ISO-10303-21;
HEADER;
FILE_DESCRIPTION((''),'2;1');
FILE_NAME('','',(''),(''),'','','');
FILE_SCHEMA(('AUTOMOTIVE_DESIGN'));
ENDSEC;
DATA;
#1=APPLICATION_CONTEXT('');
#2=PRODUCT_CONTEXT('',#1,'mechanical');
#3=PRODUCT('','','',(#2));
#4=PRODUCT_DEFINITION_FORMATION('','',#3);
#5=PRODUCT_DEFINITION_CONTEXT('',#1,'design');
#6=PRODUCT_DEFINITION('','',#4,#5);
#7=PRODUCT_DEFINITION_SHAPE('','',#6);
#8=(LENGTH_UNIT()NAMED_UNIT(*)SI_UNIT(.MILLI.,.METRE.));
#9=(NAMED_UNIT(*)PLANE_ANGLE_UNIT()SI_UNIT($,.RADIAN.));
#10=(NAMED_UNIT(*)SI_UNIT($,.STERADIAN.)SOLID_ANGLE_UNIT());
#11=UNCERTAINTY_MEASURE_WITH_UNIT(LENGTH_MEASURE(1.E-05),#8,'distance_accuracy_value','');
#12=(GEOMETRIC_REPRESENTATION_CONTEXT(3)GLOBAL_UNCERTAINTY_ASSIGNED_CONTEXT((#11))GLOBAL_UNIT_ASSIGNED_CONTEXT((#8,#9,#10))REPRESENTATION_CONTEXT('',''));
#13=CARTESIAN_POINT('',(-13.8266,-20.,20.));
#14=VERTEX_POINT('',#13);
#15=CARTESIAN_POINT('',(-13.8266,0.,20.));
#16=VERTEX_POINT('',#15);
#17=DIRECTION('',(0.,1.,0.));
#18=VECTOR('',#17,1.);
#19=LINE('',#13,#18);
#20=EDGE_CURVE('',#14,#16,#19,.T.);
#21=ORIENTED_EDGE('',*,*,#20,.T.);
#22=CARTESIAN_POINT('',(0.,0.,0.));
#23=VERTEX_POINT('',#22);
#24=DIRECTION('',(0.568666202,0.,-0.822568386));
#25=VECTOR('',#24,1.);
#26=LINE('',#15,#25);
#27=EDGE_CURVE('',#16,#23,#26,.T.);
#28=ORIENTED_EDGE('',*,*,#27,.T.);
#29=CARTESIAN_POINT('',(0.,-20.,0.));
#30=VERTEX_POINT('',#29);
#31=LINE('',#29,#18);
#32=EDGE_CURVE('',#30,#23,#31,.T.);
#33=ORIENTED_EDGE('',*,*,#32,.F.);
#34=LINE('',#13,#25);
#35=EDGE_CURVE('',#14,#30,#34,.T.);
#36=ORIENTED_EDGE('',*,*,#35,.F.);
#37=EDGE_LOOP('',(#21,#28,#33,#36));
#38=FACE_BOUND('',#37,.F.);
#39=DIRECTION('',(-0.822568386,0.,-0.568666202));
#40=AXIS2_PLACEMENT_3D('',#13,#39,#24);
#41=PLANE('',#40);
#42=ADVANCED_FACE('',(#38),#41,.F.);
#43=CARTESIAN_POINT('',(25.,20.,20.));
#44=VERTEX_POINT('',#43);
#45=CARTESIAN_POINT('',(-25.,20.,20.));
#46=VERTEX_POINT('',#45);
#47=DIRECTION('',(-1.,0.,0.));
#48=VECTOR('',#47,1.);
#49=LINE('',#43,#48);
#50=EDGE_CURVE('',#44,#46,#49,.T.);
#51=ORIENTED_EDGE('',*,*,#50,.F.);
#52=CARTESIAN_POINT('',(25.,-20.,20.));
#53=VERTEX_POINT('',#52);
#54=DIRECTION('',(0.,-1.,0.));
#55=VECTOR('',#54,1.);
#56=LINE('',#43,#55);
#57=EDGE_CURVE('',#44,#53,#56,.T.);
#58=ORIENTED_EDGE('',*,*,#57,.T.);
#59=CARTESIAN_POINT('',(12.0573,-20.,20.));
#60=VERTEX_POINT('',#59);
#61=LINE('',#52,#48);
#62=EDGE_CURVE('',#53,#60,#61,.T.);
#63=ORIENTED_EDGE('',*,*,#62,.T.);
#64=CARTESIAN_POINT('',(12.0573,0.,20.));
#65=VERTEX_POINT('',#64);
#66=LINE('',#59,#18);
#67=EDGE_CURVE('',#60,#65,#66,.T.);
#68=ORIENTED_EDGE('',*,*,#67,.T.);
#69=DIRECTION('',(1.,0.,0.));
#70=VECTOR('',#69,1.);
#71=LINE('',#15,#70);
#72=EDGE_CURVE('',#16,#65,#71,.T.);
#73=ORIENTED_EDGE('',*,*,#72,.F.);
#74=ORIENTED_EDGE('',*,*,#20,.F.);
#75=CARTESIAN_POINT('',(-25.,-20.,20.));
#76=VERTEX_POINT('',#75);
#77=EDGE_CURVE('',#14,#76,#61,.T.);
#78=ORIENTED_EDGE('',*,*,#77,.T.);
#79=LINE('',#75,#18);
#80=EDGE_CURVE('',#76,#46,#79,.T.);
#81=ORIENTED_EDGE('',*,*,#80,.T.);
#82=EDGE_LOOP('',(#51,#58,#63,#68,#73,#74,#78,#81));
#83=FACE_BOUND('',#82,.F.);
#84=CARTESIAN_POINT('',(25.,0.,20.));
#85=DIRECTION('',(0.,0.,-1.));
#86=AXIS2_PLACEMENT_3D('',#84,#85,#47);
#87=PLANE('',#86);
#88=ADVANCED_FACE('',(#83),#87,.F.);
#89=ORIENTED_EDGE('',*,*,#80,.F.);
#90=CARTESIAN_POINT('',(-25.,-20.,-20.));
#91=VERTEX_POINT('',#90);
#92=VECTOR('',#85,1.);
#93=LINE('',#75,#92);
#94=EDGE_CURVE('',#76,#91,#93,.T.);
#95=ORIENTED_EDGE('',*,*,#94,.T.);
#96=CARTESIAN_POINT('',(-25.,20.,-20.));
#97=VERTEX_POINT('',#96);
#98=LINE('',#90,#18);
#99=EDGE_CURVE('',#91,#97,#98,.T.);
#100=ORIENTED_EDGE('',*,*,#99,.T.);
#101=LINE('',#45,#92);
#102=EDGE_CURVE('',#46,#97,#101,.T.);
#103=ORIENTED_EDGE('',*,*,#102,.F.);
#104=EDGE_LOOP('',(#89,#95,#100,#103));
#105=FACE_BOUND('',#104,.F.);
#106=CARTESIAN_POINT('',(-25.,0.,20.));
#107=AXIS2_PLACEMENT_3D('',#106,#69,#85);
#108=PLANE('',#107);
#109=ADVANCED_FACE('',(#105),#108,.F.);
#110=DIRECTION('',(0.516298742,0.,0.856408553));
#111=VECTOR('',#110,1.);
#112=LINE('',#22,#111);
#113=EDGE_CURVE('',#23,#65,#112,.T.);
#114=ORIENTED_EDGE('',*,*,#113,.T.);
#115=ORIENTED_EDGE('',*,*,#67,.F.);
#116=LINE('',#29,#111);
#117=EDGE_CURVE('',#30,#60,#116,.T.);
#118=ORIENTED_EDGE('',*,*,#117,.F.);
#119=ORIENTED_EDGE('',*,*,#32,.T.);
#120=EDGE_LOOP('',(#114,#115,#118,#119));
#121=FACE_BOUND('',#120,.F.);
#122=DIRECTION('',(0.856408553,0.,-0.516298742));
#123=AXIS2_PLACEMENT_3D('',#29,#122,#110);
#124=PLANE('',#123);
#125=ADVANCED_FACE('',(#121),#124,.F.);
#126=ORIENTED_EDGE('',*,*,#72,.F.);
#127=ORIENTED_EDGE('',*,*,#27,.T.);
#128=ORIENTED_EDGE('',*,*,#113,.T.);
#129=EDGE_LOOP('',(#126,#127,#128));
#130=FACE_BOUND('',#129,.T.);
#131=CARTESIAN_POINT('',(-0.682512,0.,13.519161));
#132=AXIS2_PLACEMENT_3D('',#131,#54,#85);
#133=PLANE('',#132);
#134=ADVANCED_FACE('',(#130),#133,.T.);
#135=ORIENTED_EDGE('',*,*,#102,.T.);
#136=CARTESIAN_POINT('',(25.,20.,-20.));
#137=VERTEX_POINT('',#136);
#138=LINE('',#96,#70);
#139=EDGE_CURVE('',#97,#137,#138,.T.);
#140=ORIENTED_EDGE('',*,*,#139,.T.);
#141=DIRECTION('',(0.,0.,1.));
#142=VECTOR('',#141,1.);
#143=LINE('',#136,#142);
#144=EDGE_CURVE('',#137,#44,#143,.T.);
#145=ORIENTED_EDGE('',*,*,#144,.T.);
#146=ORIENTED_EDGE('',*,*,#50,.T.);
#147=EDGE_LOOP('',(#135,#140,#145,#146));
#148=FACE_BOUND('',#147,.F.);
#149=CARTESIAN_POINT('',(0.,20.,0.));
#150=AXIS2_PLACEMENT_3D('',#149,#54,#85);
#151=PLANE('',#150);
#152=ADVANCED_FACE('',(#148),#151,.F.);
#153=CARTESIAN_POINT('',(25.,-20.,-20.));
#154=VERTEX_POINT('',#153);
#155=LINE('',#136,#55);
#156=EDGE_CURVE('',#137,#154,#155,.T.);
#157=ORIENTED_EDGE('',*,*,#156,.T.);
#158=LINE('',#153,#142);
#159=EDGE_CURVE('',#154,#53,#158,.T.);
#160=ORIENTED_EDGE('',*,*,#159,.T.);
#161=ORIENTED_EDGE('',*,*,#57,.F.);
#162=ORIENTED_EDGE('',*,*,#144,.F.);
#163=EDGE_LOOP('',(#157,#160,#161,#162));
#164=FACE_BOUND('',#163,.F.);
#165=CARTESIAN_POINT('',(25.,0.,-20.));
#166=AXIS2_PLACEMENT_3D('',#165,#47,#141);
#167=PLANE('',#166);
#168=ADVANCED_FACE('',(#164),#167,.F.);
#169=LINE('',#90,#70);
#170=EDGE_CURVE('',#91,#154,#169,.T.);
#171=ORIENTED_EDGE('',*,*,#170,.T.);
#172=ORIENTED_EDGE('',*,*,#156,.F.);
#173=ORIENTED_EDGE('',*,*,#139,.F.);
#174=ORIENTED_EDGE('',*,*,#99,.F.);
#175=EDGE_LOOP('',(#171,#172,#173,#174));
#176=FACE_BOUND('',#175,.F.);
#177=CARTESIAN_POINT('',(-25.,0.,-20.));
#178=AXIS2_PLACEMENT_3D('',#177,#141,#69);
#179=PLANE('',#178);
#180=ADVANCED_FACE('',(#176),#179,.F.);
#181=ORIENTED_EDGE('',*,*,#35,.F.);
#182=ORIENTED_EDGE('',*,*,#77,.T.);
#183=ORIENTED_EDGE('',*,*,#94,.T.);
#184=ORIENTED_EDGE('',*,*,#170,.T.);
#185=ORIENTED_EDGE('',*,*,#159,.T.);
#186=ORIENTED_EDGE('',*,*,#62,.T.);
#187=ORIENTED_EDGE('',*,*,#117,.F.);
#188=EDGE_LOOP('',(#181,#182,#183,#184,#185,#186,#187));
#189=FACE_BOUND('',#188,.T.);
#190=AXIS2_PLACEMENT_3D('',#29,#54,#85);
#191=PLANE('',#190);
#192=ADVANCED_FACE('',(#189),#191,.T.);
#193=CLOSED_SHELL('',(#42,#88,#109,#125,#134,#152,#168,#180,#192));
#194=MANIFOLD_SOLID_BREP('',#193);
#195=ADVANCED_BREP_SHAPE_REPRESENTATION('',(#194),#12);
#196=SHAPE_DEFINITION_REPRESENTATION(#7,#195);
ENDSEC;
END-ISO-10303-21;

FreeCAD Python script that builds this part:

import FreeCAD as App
import Part
import Sketcher
Q = App.Units.Quantity

doc = App.newDocument("Part")
body = doc.addObject("PartDesign::Body", "Body")

sketch1 = doc.addObject("Sketcher::SketchObject", "Sketch")
body.addObject(sketch1)
sketch1.AttachmentSupport = (doc.XZ_Plane, [""])
sketch1.MapMode = "FlatFace"
sketch1.addGeometry([
    Part.LineSegment(App.Vector(-25, 20, 0), App.Vector(-25, -20, 0)),
    Part.LineSegment(App.Vector(-25, -20, 0), App.Vector(25, -20, 0)),
    Part.LineSegment(App.Vector(25, -20, 0), App.Vector(25, 20, 0)),
    Part.LineSegment(App.Vector(25, 20, 0), App.Vector(-25, 20, 0)),
], False)
sketch1.addConstraint([
    Sketcher.Constraint("Coincident", 0, 2, 1, 1),
    Sketcher.Constraint("Coincident", 1, 2, 2, 1),
    Sketcher.Constraint("Coincident", 2, 2, 3, 1),
    Sketcher.Constraint("Coincident", 3, 2, 0, 1),
    Sketcher.Constraint("Vertical", 0),
    Sketcher.Constraint("Horizontal", 1),
    Sketcher.Constraint("Vertical", 2),
    Sketcher.Constraint("Horizontal", 3),
    Sketcher.Constraint("Symmetric", 0, 2, 2, 2, -1, 1),
    Sketcher.Constraint("DistanceX", 0, 2, -1, 1, Q("25 mm")),
    Sketcher.Constraint("DistanceY", 0, 2, 0, 1, Q("40 mm")),
])
pad1 = doc.addObject("PartDesign::Pad", "Pad")
body.addObject(pad1)
pad1.Profile = sketch1
pad1.Length = 40
pad1.Midplane = True

sketch2 = doc.addObject("Sketcher::SketchObject", "Sketch001")
body.addObject(sketch2)
sketch2.AttachmentSupport = (doc.XZ_Plane, [""])
sketch2.MapMode = "FlatFace"
sketch2.AttachmentOffset = App.Placement(App.Vector(0, 0, 20), App.Rotation())
sketch2.addGeometry([
    Part.LineSegment(App.Vector(12, 20, 0), App.Vector(-14, 20, 0)),
    Part.LineSegment(App.Vector(-14, 20, 0), App.Vector(0, 0, 0)),
    Part.LineSegment(App.Vector(0, 0, 0), App.Vector(12, 20, 0)),
], False)
sketch2.addConstraint([
    Sketcher.Constraint("Coincident", 0, 2, 1, 1),
    Sketcher.Constraint("Coincident", 1, 2, 2, 1),
    Sketcher.Constraint("Coincident", 2, 2, 0, 1),
    Sketcher.Constraint("Horizontal", 0),
    Sketcher.Constraint("Coincident", 1, 2, -1, 1),
    Sketcher.Constraint("DistanceY", -1, 1, 0, 2, Q("20 mm")),
    Sketcher.Constraint("DistanceX", 0, 2, 0, 1, Q("25.884 mm")),
    Sketcher.Constraint("Distance", 1, Q("24.314 mm")),
])
pocket1 = doc.addObject("PartDesign::Pocket", "Pocket")
body.addObject(pocket1)
pocket1.Profile = sketch2
pocket1.Length = 20

doc.recompute()
